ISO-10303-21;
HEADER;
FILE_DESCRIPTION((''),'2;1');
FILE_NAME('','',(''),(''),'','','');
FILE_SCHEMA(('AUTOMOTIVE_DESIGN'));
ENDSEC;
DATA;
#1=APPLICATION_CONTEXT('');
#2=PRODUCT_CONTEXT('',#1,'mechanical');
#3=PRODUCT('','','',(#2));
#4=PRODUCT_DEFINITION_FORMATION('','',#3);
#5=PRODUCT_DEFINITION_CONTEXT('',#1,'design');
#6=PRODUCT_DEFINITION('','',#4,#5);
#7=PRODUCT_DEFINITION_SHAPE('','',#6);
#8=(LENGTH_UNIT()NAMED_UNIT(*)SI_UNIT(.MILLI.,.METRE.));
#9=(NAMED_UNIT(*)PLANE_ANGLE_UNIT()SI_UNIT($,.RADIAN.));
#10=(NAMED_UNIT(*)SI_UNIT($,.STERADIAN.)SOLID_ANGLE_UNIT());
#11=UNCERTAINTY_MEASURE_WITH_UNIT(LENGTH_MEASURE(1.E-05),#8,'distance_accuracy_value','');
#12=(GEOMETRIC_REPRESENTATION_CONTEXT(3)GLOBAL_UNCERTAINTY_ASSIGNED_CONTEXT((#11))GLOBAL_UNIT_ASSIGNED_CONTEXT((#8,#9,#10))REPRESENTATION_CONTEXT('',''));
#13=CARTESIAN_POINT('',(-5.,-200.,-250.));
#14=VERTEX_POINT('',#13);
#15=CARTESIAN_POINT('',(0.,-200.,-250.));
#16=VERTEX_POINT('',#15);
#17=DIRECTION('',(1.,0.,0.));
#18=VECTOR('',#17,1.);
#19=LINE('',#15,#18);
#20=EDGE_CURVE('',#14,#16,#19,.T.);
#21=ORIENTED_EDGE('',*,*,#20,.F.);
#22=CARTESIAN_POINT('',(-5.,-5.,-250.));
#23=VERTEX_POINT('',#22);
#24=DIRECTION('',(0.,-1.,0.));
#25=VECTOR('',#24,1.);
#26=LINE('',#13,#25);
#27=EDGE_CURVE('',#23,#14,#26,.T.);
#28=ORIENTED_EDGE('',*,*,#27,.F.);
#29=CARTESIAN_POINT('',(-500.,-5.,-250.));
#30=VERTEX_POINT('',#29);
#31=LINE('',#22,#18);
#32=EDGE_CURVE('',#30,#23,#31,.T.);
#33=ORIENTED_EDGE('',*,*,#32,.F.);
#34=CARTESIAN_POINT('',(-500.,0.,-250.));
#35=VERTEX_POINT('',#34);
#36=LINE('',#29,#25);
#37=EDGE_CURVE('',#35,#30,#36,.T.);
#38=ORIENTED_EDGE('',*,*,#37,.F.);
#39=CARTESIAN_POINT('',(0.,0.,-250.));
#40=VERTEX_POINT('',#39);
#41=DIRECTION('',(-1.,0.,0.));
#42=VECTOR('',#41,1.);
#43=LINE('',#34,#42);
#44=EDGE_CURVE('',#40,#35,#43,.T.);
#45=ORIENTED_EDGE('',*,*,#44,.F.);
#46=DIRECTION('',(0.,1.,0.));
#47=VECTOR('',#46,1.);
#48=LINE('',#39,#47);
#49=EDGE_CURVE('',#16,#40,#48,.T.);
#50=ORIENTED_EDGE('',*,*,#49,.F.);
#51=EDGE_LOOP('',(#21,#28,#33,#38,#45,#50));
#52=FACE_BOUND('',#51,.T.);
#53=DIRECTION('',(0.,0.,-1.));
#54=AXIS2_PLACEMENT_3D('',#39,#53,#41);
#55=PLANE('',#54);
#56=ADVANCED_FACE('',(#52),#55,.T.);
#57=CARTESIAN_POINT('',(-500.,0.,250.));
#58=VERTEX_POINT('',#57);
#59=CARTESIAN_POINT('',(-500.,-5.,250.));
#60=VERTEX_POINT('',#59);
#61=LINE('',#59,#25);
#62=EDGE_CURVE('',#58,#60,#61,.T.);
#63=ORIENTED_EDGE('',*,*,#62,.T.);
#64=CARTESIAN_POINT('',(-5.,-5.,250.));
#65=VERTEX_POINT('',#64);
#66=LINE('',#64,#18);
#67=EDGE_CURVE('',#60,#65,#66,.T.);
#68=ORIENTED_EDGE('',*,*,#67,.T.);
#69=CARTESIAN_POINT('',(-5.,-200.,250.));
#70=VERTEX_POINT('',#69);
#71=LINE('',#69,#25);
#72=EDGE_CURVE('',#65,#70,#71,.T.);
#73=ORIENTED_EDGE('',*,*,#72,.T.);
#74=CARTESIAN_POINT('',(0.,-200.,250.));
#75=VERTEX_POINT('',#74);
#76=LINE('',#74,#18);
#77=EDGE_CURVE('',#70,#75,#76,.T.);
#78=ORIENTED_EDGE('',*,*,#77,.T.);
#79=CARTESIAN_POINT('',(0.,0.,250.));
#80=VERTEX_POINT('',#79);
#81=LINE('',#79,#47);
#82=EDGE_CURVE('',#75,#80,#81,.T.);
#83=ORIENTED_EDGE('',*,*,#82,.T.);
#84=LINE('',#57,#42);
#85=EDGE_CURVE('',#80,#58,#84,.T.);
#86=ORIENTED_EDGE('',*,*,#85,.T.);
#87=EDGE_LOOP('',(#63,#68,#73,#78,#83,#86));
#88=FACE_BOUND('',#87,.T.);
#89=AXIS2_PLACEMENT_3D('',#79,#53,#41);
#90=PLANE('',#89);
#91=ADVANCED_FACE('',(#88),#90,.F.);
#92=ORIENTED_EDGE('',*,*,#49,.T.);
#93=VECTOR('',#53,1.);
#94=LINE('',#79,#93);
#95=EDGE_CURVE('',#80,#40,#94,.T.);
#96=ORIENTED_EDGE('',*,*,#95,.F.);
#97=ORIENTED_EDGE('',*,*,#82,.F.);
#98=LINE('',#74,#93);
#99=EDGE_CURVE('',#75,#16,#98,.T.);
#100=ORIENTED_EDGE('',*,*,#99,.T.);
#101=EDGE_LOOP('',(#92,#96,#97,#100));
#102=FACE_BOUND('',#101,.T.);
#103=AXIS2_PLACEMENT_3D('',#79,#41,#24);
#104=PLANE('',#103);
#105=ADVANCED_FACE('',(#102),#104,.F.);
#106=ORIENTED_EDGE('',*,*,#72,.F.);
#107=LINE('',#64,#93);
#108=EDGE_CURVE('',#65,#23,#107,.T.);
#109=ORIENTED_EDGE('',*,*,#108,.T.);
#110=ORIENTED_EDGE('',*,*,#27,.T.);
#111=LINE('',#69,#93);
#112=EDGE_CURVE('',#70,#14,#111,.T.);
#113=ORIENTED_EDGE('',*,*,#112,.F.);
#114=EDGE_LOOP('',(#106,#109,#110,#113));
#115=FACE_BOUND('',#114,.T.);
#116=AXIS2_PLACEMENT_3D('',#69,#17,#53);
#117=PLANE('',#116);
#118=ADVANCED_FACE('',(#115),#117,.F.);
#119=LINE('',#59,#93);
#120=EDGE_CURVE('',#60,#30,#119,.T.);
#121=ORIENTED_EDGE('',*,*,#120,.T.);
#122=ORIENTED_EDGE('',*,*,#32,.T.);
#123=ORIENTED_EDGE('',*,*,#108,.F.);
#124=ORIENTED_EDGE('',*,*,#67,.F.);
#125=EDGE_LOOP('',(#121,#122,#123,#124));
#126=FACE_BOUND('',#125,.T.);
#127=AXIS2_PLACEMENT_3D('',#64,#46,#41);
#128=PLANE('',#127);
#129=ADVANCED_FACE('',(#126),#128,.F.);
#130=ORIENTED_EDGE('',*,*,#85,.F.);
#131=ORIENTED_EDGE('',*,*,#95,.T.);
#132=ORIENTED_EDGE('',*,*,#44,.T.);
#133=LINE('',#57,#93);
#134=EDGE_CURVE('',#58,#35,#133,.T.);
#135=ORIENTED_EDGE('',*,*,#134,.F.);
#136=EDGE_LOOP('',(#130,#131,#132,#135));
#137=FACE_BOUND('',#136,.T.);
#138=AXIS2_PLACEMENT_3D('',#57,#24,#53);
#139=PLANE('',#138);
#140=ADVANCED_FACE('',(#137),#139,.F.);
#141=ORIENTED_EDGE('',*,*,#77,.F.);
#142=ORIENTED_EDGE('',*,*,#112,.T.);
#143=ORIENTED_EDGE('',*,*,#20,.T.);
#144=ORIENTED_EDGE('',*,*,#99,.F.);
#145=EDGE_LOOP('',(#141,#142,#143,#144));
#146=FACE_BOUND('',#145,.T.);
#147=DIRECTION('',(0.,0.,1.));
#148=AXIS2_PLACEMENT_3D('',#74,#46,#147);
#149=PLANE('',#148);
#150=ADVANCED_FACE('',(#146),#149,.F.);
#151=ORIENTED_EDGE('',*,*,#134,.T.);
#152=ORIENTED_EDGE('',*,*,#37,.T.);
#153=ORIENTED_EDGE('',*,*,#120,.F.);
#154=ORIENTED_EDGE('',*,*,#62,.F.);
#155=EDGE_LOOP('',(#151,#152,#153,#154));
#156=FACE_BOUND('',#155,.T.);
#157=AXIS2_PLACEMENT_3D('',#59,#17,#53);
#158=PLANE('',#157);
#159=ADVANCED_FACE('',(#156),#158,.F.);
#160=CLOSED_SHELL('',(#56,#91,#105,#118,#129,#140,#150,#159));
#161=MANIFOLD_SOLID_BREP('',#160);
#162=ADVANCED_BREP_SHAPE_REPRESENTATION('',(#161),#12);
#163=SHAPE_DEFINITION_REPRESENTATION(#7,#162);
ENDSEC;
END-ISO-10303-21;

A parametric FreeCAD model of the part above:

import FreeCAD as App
import Part
import Sketcher
Q = App.Units.Quantity


def add_polygon(sketch, points):
    """Adds a closed chain of lines whose ends are joined by coincident constraints."""
    first, n = sketch.GeometryCount, len(points)
    for a, b in zip(points, points[1:] + points[:1]):
        sketch.addGeometry(Part.LineSegment(App.Vector(*a, 0), App.Vector(*b, 0)), False)
    for i in range(n):
        sketch.addConstraint(Sketcher.Constraint("Coincident", first + i, 2, first + (i + 1) % n, 1))

doc = App.newDocument("Part")
params = doc.addObject("Spreadsheet::Sheet", "Params")
for row, (alias, value) in enumerate([
    ("sketch1_width", "500 mm"),
    ("sketch1_width2", "495 mm"),
    ("sketch1_height", "195 mm"),
    ("pad1_length", "500 mm"),
], start=1):
    params.set(f"A{row}", alias)
    params.set(f"B{row}", "=" + value)
    params.setAlias(f"B{row}", alias)

body = doc.addObject("PartDesign::Body", "Body")

sketch1 = body.newObject("Sketcher::SketchObject", "Sketch")
sketch1.AttachmentSupport = (doc.getObject("XY_Plane"), [""])
sketch1.MapMode = "FlatFace"
add_polygon(sketch1, [(0, 0), (-500, 0), (-500, -5), (-5, -5), (-5, -200), (0, -200)])
sketch1.addConstraint(Sketcher.Constraint("Horizontal", 0))
sketch1.addConstraint(Sketcher.Constraint("Vertical", 1))
sketch1.addConstraint(Sketcher.Constraint("Horizontal", 2))
sketch1.addConstraint(Sketcher.Constraint("Vertical", 3))
sketch1.addConstraint(Sketcher.Constraint("Horizontal", 4))
sketch1.addConstraint(Sketcher.Constraint("Vertical", 5))
sketch1.addConstraint(Sketcher.Constraint("Coincident", 5, 2, -1, 1))
sketch1.addConstraint(Sketcher.Constraint("Equal", 4, 1))
sketch1.addConstraint(Sketcher.Constraint("DistanceX", 0, 2, 0, 1, Q("500 mm")))
sketch1.addConstraint(Sketcher.Constraint("DistanceX", 2, 1, 2, 2, Q("495 mm")))
sketch1.addConstraint(Sketcher.Constraint("DistanceY", 3, 2, 3, 1, Q("195 mm")))
sketch1.setExpression("Constraints[14]", "Params.sketch1_width")
sketch1.setExpression("Constraints[15]", "Params.sketch1_width2")
sketch1.setExpression("Constraints[16]", "Params.sketch1_height")
pad1 = body.newObject("PartDesign::Pad", "Pad")
pad1.Profile = sketch1
pad1.setExpression("Length", "Params.pad1_length")
pad1.Midplane = True

doc.recompute()
